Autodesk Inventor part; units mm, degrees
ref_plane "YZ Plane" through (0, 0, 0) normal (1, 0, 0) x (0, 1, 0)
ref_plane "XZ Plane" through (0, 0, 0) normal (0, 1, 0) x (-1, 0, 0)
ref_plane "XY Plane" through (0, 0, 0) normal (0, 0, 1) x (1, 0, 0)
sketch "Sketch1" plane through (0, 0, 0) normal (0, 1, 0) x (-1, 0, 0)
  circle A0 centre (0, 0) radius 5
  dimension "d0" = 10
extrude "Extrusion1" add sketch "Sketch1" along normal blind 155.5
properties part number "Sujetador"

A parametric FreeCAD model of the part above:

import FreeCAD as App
import Part
import Sketcher
from FreeCAD import Vector

doc = App.newDocument("Part")
body = doc.addObject("PartDesign::Body", "Body")

sketch1 = body.newObject("Sketcher::SketchObject", "Sketch")
sketch1.AttachmentSupport = (doc.getObject("XZ_Plane"), [""])
sketch1.MapMode = "FlatFace"
sketch1.addGeometry(Part.Circle(Vector(0, 0, 0), Vector(0, 0, 1), 5), False)
sketch1.addConstraint(Sketcher.Constraint("Coincident", 0, 3, -1, 1))
sketch1.addConstraint(Sketcher.Constraint("Diameter", 0, 10.0))
pad1 = body.newObject("PartDesign::Pad", "Pad")
pad1.Profile = sketch1
pad1.Length = 155.5
pad1.Reversed = True

doc.recompute()
